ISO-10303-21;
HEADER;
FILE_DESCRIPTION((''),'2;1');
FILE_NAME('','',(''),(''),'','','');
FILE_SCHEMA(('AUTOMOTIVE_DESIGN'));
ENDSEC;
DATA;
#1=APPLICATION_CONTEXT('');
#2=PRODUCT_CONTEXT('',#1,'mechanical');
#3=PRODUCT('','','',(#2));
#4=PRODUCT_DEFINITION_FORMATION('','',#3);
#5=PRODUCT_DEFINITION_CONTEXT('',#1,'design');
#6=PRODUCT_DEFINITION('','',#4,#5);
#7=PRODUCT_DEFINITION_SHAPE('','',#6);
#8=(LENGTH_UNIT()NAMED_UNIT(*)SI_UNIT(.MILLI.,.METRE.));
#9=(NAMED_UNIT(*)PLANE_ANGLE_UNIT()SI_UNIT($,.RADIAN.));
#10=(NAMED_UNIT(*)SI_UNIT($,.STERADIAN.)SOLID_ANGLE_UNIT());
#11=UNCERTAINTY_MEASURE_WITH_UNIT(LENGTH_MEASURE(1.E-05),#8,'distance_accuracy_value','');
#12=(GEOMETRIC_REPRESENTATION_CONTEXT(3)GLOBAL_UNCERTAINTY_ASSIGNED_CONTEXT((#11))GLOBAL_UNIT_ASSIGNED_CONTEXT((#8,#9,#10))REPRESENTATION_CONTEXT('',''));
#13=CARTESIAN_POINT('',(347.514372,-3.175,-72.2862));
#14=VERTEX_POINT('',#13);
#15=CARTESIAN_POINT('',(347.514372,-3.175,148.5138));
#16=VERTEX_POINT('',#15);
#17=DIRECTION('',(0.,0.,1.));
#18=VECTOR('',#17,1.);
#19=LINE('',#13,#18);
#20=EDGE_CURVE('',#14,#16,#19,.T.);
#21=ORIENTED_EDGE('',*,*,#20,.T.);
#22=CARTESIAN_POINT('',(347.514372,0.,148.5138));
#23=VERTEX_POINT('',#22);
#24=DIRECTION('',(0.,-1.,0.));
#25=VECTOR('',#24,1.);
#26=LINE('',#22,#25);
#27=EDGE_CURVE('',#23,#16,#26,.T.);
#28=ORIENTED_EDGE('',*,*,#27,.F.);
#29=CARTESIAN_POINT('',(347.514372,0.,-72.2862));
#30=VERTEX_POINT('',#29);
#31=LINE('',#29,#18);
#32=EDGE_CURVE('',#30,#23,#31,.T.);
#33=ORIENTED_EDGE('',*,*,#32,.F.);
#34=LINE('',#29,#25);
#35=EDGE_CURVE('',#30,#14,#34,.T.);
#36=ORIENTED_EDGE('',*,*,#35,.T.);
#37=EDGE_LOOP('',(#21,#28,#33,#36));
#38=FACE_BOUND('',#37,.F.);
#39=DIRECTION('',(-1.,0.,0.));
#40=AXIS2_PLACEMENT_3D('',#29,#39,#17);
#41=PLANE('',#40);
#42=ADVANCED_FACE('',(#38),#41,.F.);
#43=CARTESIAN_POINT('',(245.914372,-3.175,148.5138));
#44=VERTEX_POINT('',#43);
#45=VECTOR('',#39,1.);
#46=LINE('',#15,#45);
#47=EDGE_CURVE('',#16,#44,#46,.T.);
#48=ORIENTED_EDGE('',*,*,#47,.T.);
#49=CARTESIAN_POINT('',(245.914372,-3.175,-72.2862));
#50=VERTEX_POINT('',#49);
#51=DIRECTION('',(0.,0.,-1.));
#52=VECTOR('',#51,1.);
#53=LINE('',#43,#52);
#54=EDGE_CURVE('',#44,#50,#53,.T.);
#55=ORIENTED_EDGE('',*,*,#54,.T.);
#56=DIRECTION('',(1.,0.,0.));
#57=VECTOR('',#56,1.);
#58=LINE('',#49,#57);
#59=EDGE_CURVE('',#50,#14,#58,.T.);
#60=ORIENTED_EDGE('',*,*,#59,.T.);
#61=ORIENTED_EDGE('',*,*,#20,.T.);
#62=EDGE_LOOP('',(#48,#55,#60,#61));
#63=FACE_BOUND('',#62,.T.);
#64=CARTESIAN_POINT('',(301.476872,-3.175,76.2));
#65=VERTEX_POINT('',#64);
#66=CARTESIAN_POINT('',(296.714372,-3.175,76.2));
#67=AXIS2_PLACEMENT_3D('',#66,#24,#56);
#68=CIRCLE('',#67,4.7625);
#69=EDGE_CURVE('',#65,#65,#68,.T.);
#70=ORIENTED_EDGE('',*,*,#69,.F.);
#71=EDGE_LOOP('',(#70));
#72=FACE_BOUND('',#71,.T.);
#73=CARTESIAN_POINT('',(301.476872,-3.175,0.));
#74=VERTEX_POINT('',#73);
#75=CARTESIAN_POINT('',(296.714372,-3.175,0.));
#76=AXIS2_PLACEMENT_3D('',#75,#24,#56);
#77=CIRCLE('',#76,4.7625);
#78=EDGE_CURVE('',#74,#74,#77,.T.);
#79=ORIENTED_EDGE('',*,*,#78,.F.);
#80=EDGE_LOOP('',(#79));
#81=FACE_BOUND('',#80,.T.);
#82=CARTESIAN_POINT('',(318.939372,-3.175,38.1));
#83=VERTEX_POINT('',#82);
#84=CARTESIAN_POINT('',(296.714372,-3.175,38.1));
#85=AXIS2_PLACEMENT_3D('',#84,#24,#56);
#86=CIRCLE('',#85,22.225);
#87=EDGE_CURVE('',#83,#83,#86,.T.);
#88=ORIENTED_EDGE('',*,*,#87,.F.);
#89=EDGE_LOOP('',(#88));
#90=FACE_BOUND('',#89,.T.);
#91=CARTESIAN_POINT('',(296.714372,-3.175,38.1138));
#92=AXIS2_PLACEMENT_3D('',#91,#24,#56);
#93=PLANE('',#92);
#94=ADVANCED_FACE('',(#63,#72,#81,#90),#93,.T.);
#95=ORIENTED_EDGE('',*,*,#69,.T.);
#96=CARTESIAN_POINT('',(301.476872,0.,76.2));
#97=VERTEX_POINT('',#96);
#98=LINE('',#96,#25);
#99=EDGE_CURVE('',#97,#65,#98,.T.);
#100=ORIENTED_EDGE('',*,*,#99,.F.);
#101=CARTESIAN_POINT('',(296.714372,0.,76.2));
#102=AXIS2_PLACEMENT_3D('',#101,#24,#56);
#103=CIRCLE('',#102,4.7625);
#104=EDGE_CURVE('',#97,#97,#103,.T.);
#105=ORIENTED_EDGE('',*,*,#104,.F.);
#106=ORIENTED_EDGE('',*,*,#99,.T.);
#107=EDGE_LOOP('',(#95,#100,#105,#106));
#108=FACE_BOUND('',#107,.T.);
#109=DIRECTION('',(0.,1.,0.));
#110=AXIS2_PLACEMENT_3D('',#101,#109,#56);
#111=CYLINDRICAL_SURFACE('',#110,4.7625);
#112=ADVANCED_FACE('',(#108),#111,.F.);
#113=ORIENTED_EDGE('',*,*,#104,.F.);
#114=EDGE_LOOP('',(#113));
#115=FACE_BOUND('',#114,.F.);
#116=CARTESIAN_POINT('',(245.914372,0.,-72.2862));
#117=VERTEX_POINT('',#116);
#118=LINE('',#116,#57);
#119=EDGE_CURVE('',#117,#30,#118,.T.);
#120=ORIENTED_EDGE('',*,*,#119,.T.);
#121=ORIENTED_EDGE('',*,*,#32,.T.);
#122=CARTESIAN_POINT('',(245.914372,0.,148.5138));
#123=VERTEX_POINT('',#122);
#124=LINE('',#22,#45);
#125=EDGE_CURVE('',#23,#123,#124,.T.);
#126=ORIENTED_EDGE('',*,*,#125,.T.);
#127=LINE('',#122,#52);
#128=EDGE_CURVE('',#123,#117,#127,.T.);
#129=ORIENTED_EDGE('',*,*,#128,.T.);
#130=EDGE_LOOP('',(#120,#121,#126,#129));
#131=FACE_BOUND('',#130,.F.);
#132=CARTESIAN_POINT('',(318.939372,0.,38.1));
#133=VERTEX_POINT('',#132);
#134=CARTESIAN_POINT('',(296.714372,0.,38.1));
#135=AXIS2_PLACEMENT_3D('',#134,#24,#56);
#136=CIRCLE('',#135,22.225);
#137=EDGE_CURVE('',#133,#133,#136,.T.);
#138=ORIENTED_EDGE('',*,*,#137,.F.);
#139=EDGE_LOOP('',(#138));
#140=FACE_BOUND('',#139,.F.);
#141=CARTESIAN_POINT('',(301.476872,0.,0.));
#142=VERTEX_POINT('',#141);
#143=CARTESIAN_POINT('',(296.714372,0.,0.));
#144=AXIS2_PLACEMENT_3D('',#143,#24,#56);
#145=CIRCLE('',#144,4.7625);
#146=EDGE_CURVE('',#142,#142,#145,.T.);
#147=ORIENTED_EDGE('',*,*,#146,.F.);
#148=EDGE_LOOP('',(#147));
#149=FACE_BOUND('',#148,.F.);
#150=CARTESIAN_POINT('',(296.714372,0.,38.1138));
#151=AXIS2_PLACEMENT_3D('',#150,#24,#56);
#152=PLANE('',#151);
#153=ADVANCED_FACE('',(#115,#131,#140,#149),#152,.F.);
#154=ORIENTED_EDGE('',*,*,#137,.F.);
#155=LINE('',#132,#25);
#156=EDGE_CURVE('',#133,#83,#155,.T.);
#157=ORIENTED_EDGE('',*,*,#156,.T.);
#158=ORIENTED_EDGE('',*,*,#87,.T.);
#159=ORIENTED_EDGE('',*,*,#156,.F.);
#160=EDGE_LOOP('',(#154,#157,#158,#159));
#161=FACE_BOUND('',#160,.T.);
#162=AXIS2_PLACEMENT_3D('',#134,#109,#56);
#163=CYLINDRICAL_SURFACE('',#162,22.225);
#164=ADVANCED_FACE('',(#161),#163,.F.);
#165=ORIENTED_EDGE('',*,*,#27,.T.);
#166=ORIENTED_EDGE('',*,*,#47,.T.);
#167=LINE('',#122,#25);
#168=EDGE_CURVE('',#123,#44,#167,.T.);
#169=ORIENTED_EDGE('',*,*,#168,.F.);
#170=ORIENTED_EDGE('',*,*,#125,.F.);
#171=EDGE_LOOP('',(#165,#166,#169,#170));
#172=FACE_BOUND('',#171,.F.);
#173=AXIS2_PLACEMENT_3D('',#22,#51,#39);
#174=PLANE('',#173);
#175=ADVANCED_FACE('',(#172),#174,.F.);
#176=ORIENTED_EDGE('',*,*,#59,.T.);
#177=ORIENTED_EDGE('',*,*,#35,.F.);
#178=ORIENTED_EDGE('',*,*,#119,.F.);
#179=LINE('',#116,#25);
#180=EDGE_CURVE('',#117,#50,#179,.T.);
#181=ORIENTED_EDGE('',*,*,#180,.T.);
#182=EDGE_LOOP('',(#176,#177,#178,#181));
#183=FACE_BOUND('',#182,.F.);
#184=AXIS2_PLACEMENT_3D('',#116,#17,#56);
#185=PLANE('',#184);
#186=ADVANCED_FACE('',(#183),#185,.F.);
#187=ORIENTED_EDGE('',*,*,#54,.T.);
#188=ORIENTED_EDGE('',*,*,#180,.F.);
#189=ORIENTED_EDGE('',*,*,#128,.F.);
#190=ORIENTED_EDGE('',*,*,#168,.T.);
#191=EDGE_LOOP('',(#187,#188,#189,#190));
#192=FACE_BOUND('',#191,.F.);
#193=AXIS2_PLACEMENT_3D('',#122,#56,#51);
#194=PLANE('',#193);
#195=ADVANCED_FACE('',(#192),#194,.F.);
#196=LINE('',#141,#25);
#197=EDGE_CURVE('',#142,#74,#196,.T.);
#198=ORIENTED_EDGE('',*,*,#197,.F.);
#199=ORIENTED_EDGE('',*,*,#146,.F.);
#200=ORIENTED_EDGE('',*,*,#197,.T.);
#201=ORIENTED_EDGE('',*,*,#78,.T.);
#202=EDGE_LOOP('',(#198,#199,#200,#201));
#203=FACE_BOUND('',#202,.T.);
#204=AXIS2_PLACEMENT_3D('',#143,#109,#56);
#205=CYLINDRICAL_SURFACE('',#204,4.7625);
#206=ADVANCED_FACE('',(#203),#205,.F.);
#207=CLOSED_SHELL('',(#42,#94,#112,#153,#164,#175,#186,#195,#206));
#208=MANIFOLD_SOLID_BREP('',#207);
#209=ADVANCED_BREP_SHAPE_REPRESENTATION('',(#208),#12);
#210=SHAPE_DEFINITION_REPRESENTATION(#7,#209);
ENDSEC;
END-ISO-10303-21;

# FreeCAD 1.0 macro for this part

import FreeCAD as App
import Part
import Sketcher
Q = App.Units.Quantity


def add_polygon(sketch, points):
    """Adds a closed chain of lines whose ends are joined by coincident constraints."""
    first, n = sketch.GeometryCount, len(points)
    for a, b in zip(points, points[1:] + points[:1]):
        sketch.addGeometry(Part.LineSegment(App.Vector(*a, 0), App.Vector(*b, 0)), False)
    for i in range(n):
        sketch.addConstraint(Sketcher.Constraint("Coincident", first + i, 2, first + (i + 1) % n, 1))

doc = App.newDocument("Part")
body = doc.addObject("PartDesign::Body", "Body")

sketch1 = body.newObject("Sketcher::SketchObject", "Sketch")
sketch1.AttachmentSupport = (doc.getObject("XZ_Plane"), [""])
sketch1.MapMode = "FlatFace"
add_polygon(sketch1, [(347.5, -72.3), (347.5, 148.5), (245.9, 148.5), (245.9, -72.3)])
sketch1.addGeometry(Part.Circle(App.Vector(296.7, 0, 0), App.Vector(0, 0, 1), 4.8), False)
sketch1.addGeometry(Part.Circle(App.Vector(296.7, 38.1, 0), App.Vector(0, 0, 1), 22.2), False)
sketch1.addGeometry(Part.Circle(App.Vector(296.7, 76.2, 0), App.Vector(0, 0, 1), 4.8), False)
sketch1.addConstraint([
    Sketcher.Constraint("Vertical", 0),
    Sketcher.Constraint("Horizontal", 1),
    Sketcher.Constraint("Vertical", 2),
    Sketcher.Constraint("Horizontal", 3),
    Sketcher.Constraint("Equal", 4, 6),
    Sketcher.Constraint("PointOnObject", 4, 3, -1),
    Sketcher.Constraint("Vertical", 4, 3, 5, 3),
    Sketcher.Constraint("Vertical", 5, 3, 6, 3),
    Sketcher.Constraint("Diameter", 5, Q("1.75 in")),
    Sketcher.Constraint("DistanceX", 1, 2, 1, 1, Q("4 in")),
    Sketcher.Constraint("Diameter", 4, Q("0.375 in")),
    Sketcher.Constraint("DistanceY", -1, 1, 6, 3, Q("3 in")),
    Sketcher.Constraint("DistanceX", 6, 3, 0, 2, Q("2 in")),
    Sketcher.Constraint("DistanceY", -1, 1, 5, 3, Q("1.5 in")),
    Sketcher.Constraint("DistanceY", -1, 1, 0, 2, Q("5.847 in")),
    Sketcher.Constraint("DistanceY", 0, 1, 0, 2, 220.8),
    Sketcher.Constraint("DistanceX", -1, 1, 0, 2, 347.514372),
])
pad1 = body.newObject("PartDesign::Pad", "Pad")
pad1.Profile = sketch1
pad1.Length = Q("0.125 in")

doc.recompute()
